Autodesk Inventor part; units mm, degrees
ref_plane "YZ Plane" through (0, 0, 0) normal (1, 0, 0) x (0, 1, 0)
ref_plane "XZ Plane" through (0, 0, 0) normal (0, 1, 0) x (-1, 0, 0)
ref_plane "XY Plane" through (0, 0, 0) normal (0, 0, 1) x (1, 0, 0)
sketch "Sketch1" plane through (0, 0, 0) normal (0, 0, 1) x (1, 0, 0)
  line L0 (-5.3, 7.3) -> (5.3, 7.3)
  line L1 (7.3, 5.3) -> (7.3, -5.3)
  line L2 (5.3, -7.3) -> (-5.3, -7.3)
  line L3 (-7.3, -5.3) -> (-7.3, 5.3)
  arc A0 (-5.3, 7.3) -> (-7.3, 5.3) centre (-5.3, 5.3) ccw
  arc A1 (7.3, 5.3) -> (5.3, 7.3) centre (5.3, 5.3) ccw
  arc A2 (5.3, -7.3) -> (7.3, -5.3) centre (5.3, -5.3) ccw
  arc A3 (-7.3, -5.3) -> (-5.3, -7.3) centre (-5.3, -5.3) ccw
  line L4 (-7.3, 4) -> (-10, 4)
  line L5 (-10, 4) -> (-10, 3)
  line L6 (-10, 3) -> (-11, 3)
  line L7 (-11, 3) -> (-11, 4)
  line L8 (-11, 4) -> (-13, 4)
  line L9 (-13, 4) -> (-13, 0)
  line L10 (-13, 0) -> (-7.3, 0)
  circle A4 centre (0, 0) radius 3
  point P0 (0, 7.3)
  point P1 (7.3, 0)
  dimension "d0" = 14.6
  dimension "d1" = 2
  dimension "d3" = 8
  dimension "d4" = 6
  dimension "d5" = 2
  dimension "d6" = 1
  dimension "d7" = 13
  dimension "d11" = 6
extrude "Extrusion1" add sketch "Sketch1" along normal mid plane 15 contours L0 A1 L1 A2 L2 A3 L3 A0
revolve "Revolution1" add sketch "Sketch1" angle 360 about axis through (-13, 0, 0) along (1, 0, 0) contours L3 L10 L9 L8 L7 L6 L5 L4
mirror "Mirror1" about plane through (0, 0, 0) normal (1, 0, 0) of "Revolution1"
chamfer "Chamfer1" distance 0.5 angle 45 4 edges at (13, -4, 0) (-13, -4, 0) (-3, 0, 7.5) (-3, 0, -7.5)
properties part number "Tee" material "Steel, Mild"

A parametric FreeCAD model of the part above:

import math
import FreeCAD as App
import Part
import Sketcher

V = App.Vector
Q = App.Units.Quantity


def edges_at(feature, points):
    """Names of the edges that pass closest to the given points."""
    edges = feature.Shape.Edges
    near = lambda p: min(range(len(edges)), key=lambda i: edges[i].distToShape(Part.Vertex(*p))[0])
    return sorted({f"Edge{near(p) + 1}" for p in points})

doc = App.newDocument("Part")
body = doc.addObject("PartDesign::Body", "Body")

sketch1 = body.newObject("Sketcher::SketchObject", "Sketch")
sketch1.AttachmentSupport = (doc.getObject("XY_Plane"), [""])
sketch1.MapMode = "FlatFace"
sketch1.addGeometry(Part.LineSegment(V(5.3, 7.3, 0), V(-5.3, 7.3, 0)), False)
sketch1.addGeometry(Part.ArcOfCircle(Part.Circle(V(-5.3, 5.3, 0), V(0, 0, 1), 2), math.radians(90), math.radians(180)), False)
sketch1.addGeometry(Part.LineSegment(V(-7.3, 5.3, 0), V(-7.3, -5.3, 0)), False)
sketch1.addGeometry(Part.ArcOfCircle(Part.Circle(V(-5.3, -5.3, 0), V(0, 0, 1), 2), math.radians(180), math.radians(270)), False)
sketch1.addGeometry(Part.LineSegment(V(-5.3, -7.3, 0), V(5.3, -7.3, 0)), False)
sketch1.addGeometry(Part.ArcOfCircle(Part.Circle(V(5.3, -5.3, 0), V(0, 0, 1), 2), math.radians(-90), math.radians(0)), False)
sketch1.addGeometry(Part.LineSegment(V(7.3, -5.3, 0), V(7.3, 5.3, 0)), False)
sketch1.addGeometry(Part.ArcOfCircle(Part.Circle(V(5.3, 5.3, 0), V(0, 0, 1), 2), math.radians(0), math.radians(90)), False)
sketch1.addGeometry(Part.Circle(V(0, 0, 0), V(0, 0, 1), 3), False)
sketch1.addConstraint(Sketcher.Constraint("Tangent", 0, 2, 1, 1))
sketch1.addConstraint(Sketcher.Constraint("Tangent", 1, 2, 2, 1))
sketch1.addConstraint(Sketcher.Constraint("Tangent", 2, 2, 3, 1))
sketch1.addConstraint(Sketcher.Constraint("Tangent", 3, 2, 4, 1))
sketch1.addConstraint(Sketcher.Constraint("Tangent", 4, 2, 5, 1))
sketch1.addConstraint(Sketcher.Constraint("Tangent", 5, 2, 6, 1))
sketch1.addConstraint(Sketcher.Constraint("Tangent", 6, 2, 7, 1))
sketch1.addConstraint(Sketcher.Constraint("Tangent", 7, 2, 0, 1))
sketch1.addConstraint(Sketcher.Constraint("Horizontal", 0))
sketch1.addConstraint(Sketcher.Constraint("Vertical", 2))
sketch1.addConstraint(Sketcher.Constraint("Horizontal", 4))
sketch1.addConstraint(Sketcher.Constraint("Vertical", 6))
sketch1.addConstraint(Sketcher.Constraint("Coincident", 8, 3, -1, 1))
sketch1.addConstraint(Sketcher.Constraint("Equal", 1, 3))
sketch1.addConstraint(Sketcher.Constraint("Equal", 3, 5))
sketch1.addConstraint(Sketcher.Constraint("Equal", 5, 7))
sketch1.addConstraint(Sketcher.Constraint("Symmetric", 1, 3, 5, 3, -1, 1))
sketch1.addConstraint(Sketcher.Constraint("Equal", 4, 2))
sketch1.addConstraint(Sketcher.Constraint("Diameter", 8, Q("6 mm")))
sketch1.addConstraint(Sketcher.Constraint("Radius", 1, Q("2 mm")))
sketch1.addConstraint(Sketcher.Constraint("DistanceX", 0, 2, 0, 1, Q("10.6 mm")))
pad1 = body.newObject("PartDesign::Pad", "Pad")
pad1.Profile = sketch1
pad1.Length = 15
pad1.Midplane = True

sketch2 = body.newObject("Sketcher::SketchObject", "Sketch001")
sketch2.AttachmentSupport = (doc.getObject("XY_Plane"), [""])
sketch2.MapMode = "FlatFace"
sketch2.addGeometry(Part.LineSegment(V(-7.3, 0, 0), V(-7.3, 4, 0)), False)
sketch2.addGeometry(Part.LineSegment(V(-7.3, 4, 0), V(-10, 4, 0)), False)
sketch2.addGeometry(Part.LineSegment(V(-10, 4, 0), V(-10, 3, 0)), False)
sketch2.addGeometry(Part.LineSegment(V(-10, 3, 0), V(-11, 3, 0)), False)
sketch2.addGeometry(Part.LineSegment(V(-11, 3, 0), V(-11, 4, 0)), False)
sketch2.addGeometry(Part.LineSegment(V(-11, 4, 0), V(-13, 4, 0)), False)
sketch2.addGeometry(Part.LineSegment(V(-13, 4, 0), V(-13, 0, 0)), False)
sketch2.addGeometry(Part.LineSegment(V(-13, 0, 0), V(-7.3, 0, 0)), False)
sketch2.addConstraint(Sketcher.Constraint("Coincident", 0, 2, 1, 1))
sketch2.addConstraint(Sketcher.Constraint("Coincident", 1, 2, 2, 1))
sketch2.addConstraint(Sketcher.Constraint("Coincident", 2, 2, 3, 1))
sketch2.addConstraint(Sketcher.Constraint("Coincident", 3, 2, 4, 1))
sketch2.addConstraint(Sketcher.Constraint("Coincident", 4, 2, 5, 1))
sketch2.addConstraint(Sketcher.Constraint("Coincident", 5, 2, 6, 1))
sketch2.addConstraint(Sketcher.Constraint("Coincident", 6, 2, 7, 1))
sketch2.addConstraint(Sketcher.Constraint("Coincident", 7, 2, 0, 1))
sketch2.addConstraint(Sketcher.Constraint("Vertical", 0))
sketch2.addConstraint(Sketcher.Constraint("Horizontal", 1))
sketch2.addConstraint(Sketcher.Constraint("Vertical", 2))
sketch2.addConstraint(Sketcher.Constraint("Horizontal", 3))
sketch2.addConstraint(Sketcher.Constraint("Vertical", 4))
sketch2.addConstraint(Sketcher.Constraint("Horizontal", 5))
sketch2.addConstraint(Sketcher.Constraint("Vertical", 6))
sketch2.addConstraint(Sketcher.Constraint("Horizontal", 7))
sketch2.addConstraint(Sketcher.Constraint("PointOnObject", 6, 2, -1))
sketch2.addConstraint(Sketcher.Constraint("Horizontal", 1, 2, 4, 2))
sketch2.addConstraint(Sketcher.Constraint("Equal", 3, 2))
sketch2.addConstraint(Sketcher.Constraint("DistanceX", 3, 2, 3, 1, Q("1 mm")))
sketch2.addConstraint(Sketcher.Constraint("DistanceX", 5, 2, 5, 1, Q("2 mm")))
sketch2.addConstraint(Sketcher.Constraint("DistanceX", 5, 2, -1, 1, Q("13 mm")))
sketch2.addConstraint(Sketcher.Constraint("DistanceY", 0, 1, 0, 2, Q("4 mm")))
sketch2.addConstraint(Sketcher.Constraint("DistanceX", 1, 2, 1, 1, Q("2.7 mm")))
revolution = body.newObject("PartDesign::Revolution", "Revolution")
revolution.Profile = sketch2
revolution.ReferenceAxis = (sketch2, ["H_Axis"])
revolution.Angle = 360
doc.recompute()

mirrored = body.newObject("PartDesign::Mirrored", "Mirrored")
mirrored.Originals = [revolution]
mirrored.MirrorPlane = (doc.getObject("YZ_Plane"), [""])
body.Tip = mirrored
doc.recompute()

chamfer = body.newObject("PartDesign::Chamfer", "Chamfer")
chamfer.Base = (mirrored, edges_at(mirrored, [
    (13, -4, 0),
    (-13, -4, 0),
    (-3, 0, 7.5),
    (-3, 0, -7.5),
]))
chamfer.Size = 0.5

doc.recompute()
